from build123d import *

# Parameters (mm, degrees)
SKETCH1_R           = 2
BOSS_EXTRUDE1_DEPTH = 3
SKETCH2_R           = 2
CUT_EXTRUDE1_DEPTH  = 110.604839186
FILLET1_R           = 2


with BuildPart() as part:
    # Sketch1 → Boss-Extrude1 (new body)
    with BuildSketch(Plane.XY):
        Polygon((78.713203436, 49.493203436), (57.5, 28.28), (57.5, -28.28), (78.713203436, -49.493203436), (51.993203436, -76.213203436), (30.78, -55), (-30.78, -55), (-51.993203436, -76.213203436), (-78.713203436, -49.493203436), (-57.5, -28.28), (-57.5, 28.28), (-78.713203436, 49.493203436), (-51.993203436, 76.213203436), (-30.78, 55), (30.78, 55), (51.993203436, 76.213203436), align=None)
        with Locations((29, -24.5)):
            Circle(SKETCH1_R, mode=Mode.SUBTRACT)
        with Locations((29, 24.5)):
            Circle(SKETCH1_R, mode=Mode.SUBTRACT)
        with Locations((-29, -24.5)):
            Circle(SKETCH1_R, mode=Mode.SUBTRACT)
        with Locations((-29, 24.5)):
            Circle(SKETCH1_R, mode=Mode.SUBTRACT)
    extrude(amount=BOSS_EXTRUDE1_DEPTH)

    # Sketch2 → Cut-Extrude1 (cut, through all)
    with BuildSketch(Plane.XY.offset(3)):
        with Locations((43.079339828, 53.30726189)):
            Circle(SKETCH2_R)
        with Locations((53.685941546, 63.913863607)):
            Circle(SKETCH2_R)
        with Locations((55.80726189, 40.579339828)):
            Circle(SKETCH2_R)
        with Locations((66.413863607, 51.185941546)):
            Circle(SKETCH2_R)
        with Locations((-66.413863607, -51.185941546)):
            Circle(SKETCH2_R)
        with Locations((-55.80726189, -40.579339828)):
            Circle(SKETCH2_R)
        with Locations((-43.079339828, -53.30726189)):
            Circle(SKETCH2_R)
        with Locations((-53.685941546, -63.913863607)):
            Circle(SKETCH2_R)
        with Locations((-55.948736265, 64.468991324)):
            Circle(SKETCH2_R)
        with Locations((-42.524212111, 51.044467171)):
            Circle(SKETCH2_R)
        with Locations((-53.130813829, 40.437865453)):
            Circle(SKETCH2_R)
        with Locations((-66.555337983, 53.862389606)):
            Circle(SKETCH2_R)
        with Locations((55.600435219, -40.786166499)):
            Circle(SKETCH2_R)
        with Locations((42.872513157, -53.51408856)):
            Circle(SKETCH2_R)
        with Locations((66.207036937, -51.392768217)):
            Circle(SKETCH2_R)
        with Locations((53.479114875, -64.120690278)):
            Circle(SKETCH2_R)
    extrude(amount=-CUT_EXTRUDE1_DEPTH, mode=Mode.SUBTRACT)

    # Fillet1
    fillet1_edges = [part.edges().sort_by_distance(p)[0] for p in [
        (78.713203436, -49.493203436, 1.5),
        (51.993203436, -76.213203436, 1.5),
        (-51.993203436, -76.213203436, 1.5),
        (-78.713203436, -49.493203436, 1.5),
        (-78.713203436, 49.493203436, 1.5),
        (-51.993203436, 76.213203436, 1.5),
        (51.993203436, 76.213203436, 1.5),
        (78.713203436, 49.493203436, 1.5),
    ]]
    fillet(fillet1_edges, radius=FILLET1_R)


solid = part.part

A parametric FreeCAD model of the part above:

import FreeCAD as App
import Part
import Sketcher
Q = App.Units.Quantity


def edges_at(feature, points):
    """Names of the edges that pass closest to the given points."""
    edges = feature.Shape.Edges
    near = lambda p: min(range(len(edges)), key=lambda i: edges[i].distToShape(Part.Vertex(*p))[0])
    return sorted({f"Edge{near(p) + 1}" for p in points})

doc = App.newDocument("Part")
body = doc.addObject("PartDesign::Body", "Body")

# Sketch on XY plane
sketch1 = body.newObject("Sketcher::SketchObject", "Sketch")
sketch1.AttachmentSupport = (doc.getObject("XY_Plane"), [""])
sketch1.MapMode = "FlatFace"
sketch1.addGeometry(Part.LineSegment(App.Vector(57.5, 28.3, 0), App.Vector(78.7, 49.5, 0)), False)
sketch1.addGeometry(Part.LineSegment(App.Vector(78.7, 49.5, 0), App.Vector(52, 76.2, 0)), False)
sketch1.addGeometry(Part.LineSegment(App.Vector(52, 76.2, 0), App.Vector(30.8, 55, 0)), False)
sketch1.addGeometry(Part.LineSegment(App.Vector(30.8, 55, 0), App.Vector(-30.8, 55, 0)), False)
sketch1.addGeometry(Part.LineSegment(App.Vector(-30.8, 55, 0), App.Vector(-52, 76.2, 0)), False)
sketch1.addGeometry(Part.LineSegment(App.Vector(-52, 76.2, 0), App.Vector(-78.7, 49.5, 0)), False)
sketch1.addGeometry(Part.LineSegment(App.Vector(-78.7, 49.5, 0), App.Vector(-57.5, 28.3, 0)), False)
sketch1.addGeometry(Part.LineSegment(App.Vector(-57.5, 28.3, 0), App.Vector(-57.5, -28.3, 0)), False)
sketch1.addGeometry(Part.LineSegment(App.Vector(-57.5, -28.3, 0), App.Vector(-78.7, -49.5, 0)), False)
sketch1.addGeometry(Part.LineSegment(App.Vector(-78.7, -49.5, 0), App.Vector(-52, -76.2, 0)), False)
sketch1.addGeometry(Part.LineSegment(App.Vector(-52, -76.2, 0), App.Vector(-30.8, -55, 0)), False)
sketch1.addGeometry(Part.LineSegment(App.Vector(-30.8, -55, 0), App.Vector(30.8, -55, 0)), False)
sketch1.addGeometry(Part.LineSegment(App.Vector(30.8, -55, 0), App.Vector(52, -76.2, 0)), False)
sketch1.addGeometry(Part.LineSegment(App.Vector(52, -76.2, 0), App.Vector(78.7, -49.5, 0)), False)
sketch1.addGeometry(Part.LineSegment(App.Vector(78.7, -49.5, 0), App.Vector(57.5, -28.3, 0)), False)
sketch1.addGeometry(Part.LineSegment(App.Vector(57.5, -28.3, 0), App.Vector(57.5, 28.3, 0)), False)
sketch1.addGeometry(Part.Circle(App.Vector(29, -24.5, 0), App.Vector(0, 0, 1), 2), False)
sketch1.addGeometry(Part.Circle(App.Vector(-29, -24.5, 0), App.Vector(0, 0, 1), 2), False)
sketch1.addGeometry(Part.Circle(App.Vector(29, 24.5, 0), App.Vector(0, 0, 1), 2), False)
sketch1.addGeometry(Part.Circle(App.Vector(-29, 24.5, 0), App.Vector(0, 0, 1), 2), False)
sketch1.addConstraint(Sketcher.Constraint("Coincident", 0, 2, 1, 1))
sketch1.addConstraint(Sketcher.Constraint("Coincident", 1, 2, 2, 1))
sketch1.addConstraint(Sketcher.Constraint("Coincident", 2, 2, 3, 1))
sketch1.addConstraint(Sketcher.Constraint("Coincident", 3, 2, 4, 1))
sketch1.addConstraint(Sketcher.Constraint("Coincident", 4, 2, 5, 1))
sketch1.addConstraint(Sketcher.Constraint("Coincident", 5, 2, 6, 1))
sketch1.addConstraint(Sketcher.Constraint("Coincident", 6, 2, 7, 1))
sketch1.addConstraint(Sketcher.Constraint("Coincident", 7, 2, 8, 1))
sketch1.addConstraint(Sketcher.Constraint("Coincident", 8, 2, 9, 1))
sketch1.addConstraint(Sketcher.Constraint("Coincident", 9, 2, 10, 1))
sketch1.addConstraint(Sketcher.Constraint("Coincident", 10, 2, 11, 1))
sketch1.addConstraint(Sketcher.Constraint("Coincident", 11, 2, 12, 1))
sketch1.addConstraint(Sketcher.Constraint("Coincident", 12, 2, 13, 1))
sketch1.addConstraint(Sketcher.Constraint("Coincident", 13, 2, 14, 1))
sketch1.addConstraint(Sketcher.Constraint("Coincident", 14, 2, 15, 1))
sketch1.addConstraint(Sketcher.Constraint("Coincident", 15, 2, 0, 1))
sketch1.addConstraint(Sketcher.Constraint("Horizontal", 3))
sketch1.addConstraint(Sketcher.Constraint("Vertical", 7))
sketch1.addConstraint(Sketcher.Constraint("Horizontal", 11))
sketch1.addConstraint(Sketcher.Constraint("Vertical", 15))
sketch1.addConstraint(Sketcher.Constraint("Equal", 16, 17))
sketch1.addConstraint(Sketcher.Constraint("Equal", 17, 18))
sketch1.addConstraint(Sketcher.Constraint("Equal", 18, 19))
sketch1.addConstraint(Sketcher.Constraint("Symmetric", 17, 3, 18, 3, -1, 1))
sketch1.addConstraint(Sketcher.Constraint("Symmetric", 16, 3, 19, 3, -1, 1))
sketch1.addConstraint(Sketcher.Constraint("Symmetric", 0, 2, 8, 2, -1, 1))
sketch1.addConstraint(Sketcher.Constraint("Symmetric", 1, 2, 9, 2, -1, 1))
sketch1.addConstraint(Sketcher.Constraint("Symmetric", 2, 2, 10, 2, -1, 1))
sketch1.addConstraint(Sketcher.Constraint("Symmetric", 4, 2, 12, 2, -1, 1))
sketch1.addConstraint(Sketcher.Constraint("Symmetric", 5, 2, 13, 2, -1, 1))
sketch1.addConstraint(Sketcher.Constraint("Symmetric", 6, 2, 14, 2, -1, 1))
sketch1.addConstraint(Sketcher.Constraint("Symmetric", 16, 3, 17, 3, -2))
sketch1.addConstraint(Sketcher.Constraint("Symmetric", 1, 2, 4, 2, -2))
sketch1.addConstraint(Sketcher.Constraint("Symmetric", 0, 2, 5, 2, -2))
sketch1.addConstraint(Sketcher.Constraint("Perpendicular", 0, 1))
sketch1.addConstraint(Sketcher.Constraint("Perpendicular", 1, 2))
sketch1.addConstraint(Sketcher.Constraint("Perpendicular", 2, 4))
sketch1.addConstraint(Sketcher.Constraint("Perpendicular", 4, 5))
sketch1.addConstraint(Sketcher.Constraint("Perpendicular", 5, 6))
sketch1.addConstraint(Sketcher.Constraint("Perpendicular", 6, 8))
sketch1.addConstraint(Sketcher.Constraint("Perpendicular", 10, 12))
sketch1.addConstraint(Sketcher.Constraint("Equal", 0, 2))
sketch1.addConstraint(Sketcher.Constraint("Diameter", 16, Q("4 mm")))
sketch1.addConstraint(Sketcher.Constraint("Distance", 0, Q("30 mm")))
sketch1.addConstraint(Sketcher.Constraint("DistanceX", -1, 1, 16, 3, Q("29 mm")))
sketch1.addConstraint(Sketcher.Constraint("DistanceY", -1, 1, 2, 2, Q("55 mm")))
sketch1.addConstraint(Sketcher.Constraint("DistanceY", 16, 3, 18, 3, Q("49 mm")))
sketch1.addConstraint(Sketcher.Constraint("DistanceX", 3, 2, 3, 1, Q("61.56 mm")))
sketch1.addConstraint(Sketcher.Constraint("DistanceY", 7, 2, 7, 1, Q("56.56 mm")))
pad1 = body.newObject("PartDesign::Pad", "Pad")
pad1.Profile = sketch1
pad1.Length = 3

# Sketch on XY plane
sketch2 = body.newObject("Sketcher::SketchObject", "Sketch001")
sketch2.AttachmentSupport = (doc.getObject("XY_Plane"), [""])
sketch2.MapMode = "FlatFace"
sketch2.AttachmentOffset = App.Placement(App.Vector(0, 0, 3), App.Rotation())
sketch2.addGeometry(Part.Circle(App.Vector(43.1, 53.3, 0), App.Vector(0, 0, 1), 2), False)
sketch2.addGeometry(Part.Circle(App.Vector(53.7, 63.9, 0), App.Vector(0, 0, 1), 2), False)
sketch2.addGeometry(Part.Circle(App.Vector(55.8, 40.6, 0), App.Vector(0, 0, 1), 2), False)
sketch2.addGeometry(Part.Circle(App.Vector(66.4, 51.2, 0), App.Vector(0, 0, 1), 2), False)
sketch2.addGeometry(Part.Circle(App.Vector(-66.4, -51.2, 0), App.Vector(0, 0, 1), 2), False)
sketch2.addGeometry(Part.Circle(App.Vector(-55.8, -40.6, 0), App.Vector(0, 0, 1), 2), False)
sketch2.addGeometry(Part.Circle(App.Vector(-43.1, -53.3, 0), App.Vector(0, 0, 1), 2), False)
sketch2.addGeometry(Part.Circle(App.Vector(-53.7, -63.9, 0), App.Vector(0, 0, 1), 2), False)
sketch2.addGeometry(Part.Circle(App.Vector(-55.9, 64.5, 0), App.Vector(0, 0, 1), 2), False)
sketch2.addGeometry(Part.Circle(App.Vector(-42.5, 51, 0), App.Vector(0, 0, 1), 2), False)
sketch2.addGeometry(Part.Circle(App.Vector(-53.1, 40.4, 0), App.Vector(0, 0, 1), 2), False)
sketch2.addGeometry(Part.Circle(App.Vector(-66.6, 53.9, 0), App.Vector(0, 0, 1), 2), False)
sketch2.addGeometry(Part.Circle(App.Vector(55.6, -40.8, 0), App.Vector(0, 0, 1), 2), False)
sketch2.addGeometry(Part.Circle(App.Vector(42.9, -53.5, 0), App.Vector(0, 0, 1), 2), False)
sketch2.addGeometry(Part.Circle(App.Vector(66.2, -51.4, 0), App.Vector(0, 0, 1), 2), False)
sketch2.addGeometry(Part.Circle(App.Vector(53.5, -64.1, 0), App.Vector(0, 0, 1), 2), False)
sketch2.addConstraint(Sketcher.Constraint("Equal", 0, 1))
sketch2.addConstraint(Sketcher.Constraint("Equal", 1, 2))
sketch2.addConstraint(Sketcher.Constraint("Equal", 2, 3))
sketch2.addConstraint(Sketcher.Constraint("Equal", 3, 4))
sketch2.addConstraint(Sketcher.Constraint("Equal", 4, 5))
sketch2.addConstraint(Sketcher.Constraint("Equal", 5, 6))
sketch2.addConstraint(Sketcher.Constraint("Equal", 6, 7))
sketch2.addConstraint(Sketcher.Constraint("Equal", 7, 8))
sketch2.addConstraint(Sketcher.Constraint("Equal", 8, 9))
sketch2.addConstraint(Sketcher.Constraint("Equal", 9, 10))
sketch2.addConstraint(Sketcher.Constraint("Equal", 10, 11))
sketch2.addConstraint(Sketcher.Constraint("Equal", 11, 12))
sketch2.addConstraint(Sketcher.Constraint("Equal", 12, 13))
sketch2.addConstraint(Sketcher.Constraint("Equal", 13, 14))
sketch2.addConstraint(Sketcher.Constraint("Equal", 14, 15))
sketch2.addConstraint(Sketcher.Constraint("Symmetric", 3, 3, 4, 3, -1, 1))
sketch2.addConstraint(Sketcher.Constraint("Symmetric", 2, 3, 5, 3, -1, 1))
sketch2.addConstraint(Sketcher.Constraint("Symmetric", 0, 3, 6, 3, -1, 1))
sketch2.addConstraint(Sketcher.Constraint("Symmetric", 1, 3, 7, 3, -1, 1))
sketch2.addConstraint(Sketcher.Constraint("Diameter", 0, Q("4 mm")))
sketch2.addConstraint(Sketcher.Constraint("DistanceX", 8, 3, 2, 3, Q("111.755998 mm")))
sketch2.addConstraint(Sketcher.Constraint("DistanceX", 0, 3, 1, 3, Q("10.606602 mm")))
sketch2.addConstraint(Sketcher.Constraint("DistanceY", 0, 3, 1, 3, Q("10.606602 mm")))
sketch2.addConstraint(Sketcher.Constraint("DistanceX", 2, 3, 3, 3, Q("10.606602 mm")))
sketch2.addConstraint(Sketcher.Constraint("DistanceY", 2, 3, 3, 3, Q("10.606602 mm")))
sketch2.addConstraint(Sketcher.Constraint("DistanceX", 5, 3, 0, 3, Q("98.886602 mm")))
sketch2.addConstraint(Sketcher.Constraint("DistanceY", 5, 3, 0, 3, Q("93.886602 mm")))
sketch2.addConstraint(Sketcher.Constraint("DistanceX", 10, 3, 9, 3, Q("10.606602 mm")))
sketch2.addConstraint(Sketcher.Constraint("DistanceY", 10, 3, 9, 3, Q("10.606602 mm")))
sketch2.addConstraint(Sketcher.Constraint("DistanceX", 11, 3, 8, 3, Q("10.606602 mm")))
sketch2.addConstraint(Sketcher.Constraint("DistanceY", 11, 3, 8, 3, Q("10.606602 mm")))
sketch2.addConstraint(Sketcher.Constraint("DistanceX", 12, 3, 14, 3, Q("10.606602 mm")))
sketch2.addConstraint(Sketcher.Constraint("DistanceY", 14, 3, 12, 3, Q("10.606602 mm")))
sketch2.addConstraint(Sketcher.Constraint("DistanceX", 13, 3, 15, 3, Q("10.606602 mm")))
sketch2.addConstraint(Sketcher.Constraint("DistanceY", 15, 3, 13, 3, Q("10.606602 mm")))
sketch2.addConstraint(Sketcher.Constraint("DistanceX", -1, 1, 0, 3, Q("43.07934 mm")))
sketch2.addConstraint(Sketcher.Constraint("DistanceY", -1, 1, 0, 3, Q("53.307262 mm")))
sketch2.addConstraint(Sketcher.Constraint("DistanceY", -1, 1, 8, 3, Q("64.468991 mm")))
sketch2.addConstraint(Sketcher.Constraint("DistanceY", 13, 3, -1, 1, Q("53.514089 mm")))
sketch2.addConstraint(Sketcher.Constraint("DistanceY", 14, 3, -1, 1, Q("51.392768 mm")))
sketch2.addConstraint(Sketcher.Constraint("DistanceX", 9, 3, 0, 3, Q("85.603552 mm")))
sketch2.addConstraint(Sketcher.Constraint("DistanceX", 12, 3, 3, 3, Q("10.813428 mm")))
sketch2.addConstraint(Sketcher.Constraint("DistanceX", 13, 3, 2, 3, Q("12.934749 mm")))
sketch2.addConstraint(Sketcher.Constraint("DistanceY", -1, 1, 9, 3, Q("51.044467 mm")))
pocket1 = body.newObject("PartDesign::Pocket", "Pocket")
pocket1.Profile = sketch2
pocket1.Type = "ThroughAll"
doc.recompute()

fillet = body.newObject("PartDesign::Fillet", "Fillet")
fillet.Base = (pocket1, edges_at(pocket1, [
    (78.713, -49.493, 1.5),
    (51.993, -76.213, 1.5),
    (-51.993, -76.213, 1.5),
    (-78.713, -49.493, 1.5),
    (-78.713, 49.493, 1.5),
    (-51.993, 76.213, 1.5),
    (51.993, 76.213, 1.5),
    (78.713, 49.493, 1.5),
]))
fillet.Radius = 2

doc.recompute()
